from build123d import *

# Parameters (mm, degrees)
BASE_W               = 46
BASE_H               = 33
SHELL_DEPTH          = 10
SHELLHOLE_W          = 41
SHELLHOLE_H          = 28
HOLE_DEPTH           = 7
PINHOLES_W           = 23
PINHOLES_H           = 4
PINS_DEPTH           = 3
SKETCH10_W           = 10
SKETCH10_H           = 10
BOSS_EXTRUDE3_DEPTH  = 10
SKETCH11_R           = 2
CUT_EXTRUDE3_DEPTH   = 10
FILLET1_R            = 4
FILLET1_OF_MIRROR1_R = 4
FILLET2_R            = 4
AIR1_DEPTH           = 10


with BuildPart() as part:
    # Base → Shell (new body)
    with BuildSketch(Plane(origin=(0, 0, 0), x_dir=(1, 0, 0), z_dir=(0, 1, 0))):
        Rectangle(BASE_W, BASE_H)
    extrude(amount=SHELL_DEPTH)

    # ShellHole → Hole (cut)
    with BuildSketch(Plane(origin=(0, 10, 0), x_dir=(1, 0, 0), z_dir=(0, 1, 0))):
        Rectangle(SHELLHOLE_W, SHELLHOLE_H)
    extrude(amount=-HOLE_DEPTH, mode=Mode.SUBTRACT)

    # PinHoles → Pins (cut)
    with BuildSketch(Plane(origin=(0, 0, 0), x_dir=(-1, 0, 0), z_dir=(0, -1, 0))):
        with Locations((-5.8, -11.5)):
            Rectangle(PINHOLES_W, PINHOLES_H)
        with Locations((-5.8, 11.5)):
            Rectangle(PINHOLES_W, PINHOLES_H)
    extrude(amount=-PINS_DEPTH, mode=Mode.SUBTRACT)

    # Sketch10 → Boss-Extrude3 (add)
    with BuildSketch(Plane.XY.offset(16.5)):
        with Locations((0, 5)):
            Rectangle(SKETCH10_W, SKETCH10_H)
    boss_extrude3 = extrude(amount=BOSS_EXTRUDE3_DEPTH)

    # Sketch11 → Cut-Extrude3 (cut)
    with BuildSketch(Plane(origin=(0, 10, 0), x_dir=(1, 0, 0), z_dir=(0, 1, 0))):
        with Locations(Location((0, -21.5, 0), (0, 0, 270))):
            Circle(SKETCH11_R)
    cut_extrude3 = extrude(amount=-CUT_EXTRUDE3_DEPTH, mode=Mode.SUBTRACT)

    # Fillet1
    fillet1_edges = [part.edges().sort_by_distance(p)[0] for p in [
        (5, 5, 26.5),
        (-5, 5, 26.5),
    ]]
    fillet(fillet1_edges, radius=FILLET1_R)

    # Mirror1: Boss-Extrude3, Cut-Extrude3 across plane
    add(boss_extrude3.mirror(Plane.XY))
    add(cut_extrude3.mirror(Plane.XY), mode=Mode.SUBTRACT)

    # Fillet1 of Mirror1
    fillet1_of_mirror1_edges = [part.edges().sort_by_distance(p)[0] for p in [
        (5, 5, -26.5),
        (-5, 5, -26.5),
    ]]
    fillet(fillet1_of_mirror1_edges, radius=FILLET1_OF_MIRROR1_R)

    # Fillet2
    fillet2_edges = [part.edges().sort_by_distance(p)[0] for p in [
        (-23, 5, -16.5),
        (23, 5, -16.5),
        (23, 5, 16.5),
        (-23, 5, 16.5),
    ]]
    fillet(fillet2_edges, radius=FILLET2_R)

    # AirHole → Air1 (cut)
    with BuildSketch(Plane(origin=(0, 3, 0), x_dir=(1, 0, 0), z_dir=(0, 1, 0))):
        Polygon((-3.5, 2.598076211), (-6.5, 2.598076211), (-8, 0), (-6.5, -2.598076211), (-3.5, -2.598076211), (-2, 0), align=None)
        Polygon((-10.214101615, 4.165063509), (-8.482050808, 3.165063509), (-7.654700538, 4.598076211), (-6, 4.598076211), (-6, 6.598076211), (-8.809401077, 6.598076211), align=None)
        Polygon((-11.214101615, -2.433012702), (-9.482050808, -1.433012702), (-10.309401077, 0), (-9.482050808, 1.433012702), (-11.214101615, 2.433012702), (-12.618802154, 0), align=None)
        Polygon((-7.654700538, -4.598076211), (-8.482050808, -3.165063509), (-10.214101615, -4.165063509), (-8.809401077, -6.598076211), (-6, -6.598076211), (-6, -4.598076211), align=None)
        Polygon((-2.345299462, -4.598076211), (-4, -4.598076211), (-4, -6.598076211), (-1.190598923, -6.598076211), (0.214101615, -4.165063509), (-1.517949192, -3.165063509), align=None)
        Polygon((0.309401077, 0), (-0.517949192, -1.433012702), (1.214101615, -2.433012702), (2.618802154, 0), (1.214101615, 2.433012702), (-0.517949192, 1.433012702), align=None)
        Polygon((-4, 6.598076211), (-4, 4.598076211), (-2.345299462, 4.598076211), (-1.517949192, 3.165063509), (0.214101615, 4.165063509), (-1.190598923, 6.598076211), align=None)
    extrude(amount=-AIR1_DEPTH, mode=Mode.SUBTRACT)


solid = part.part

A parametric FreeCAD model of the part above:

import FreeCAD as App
import Part
import Sketcher
from FreeCAD import Vector
Q = App.Units.Quantity


def edges_at(feature, points):
    """Names of the edges that pass closest to the given points."""
    edges = feature.Shape.Edges
    near = lambda p: min(range(len(edges)), key=lambda i: edges[i].distToShape(Part.Vertex(*p))[0])
    return sorted({f"Edge{near(p) + 1}" for p in points})

doc = App.newDocument("Part")
body = doc.addObject("PartDesign::Body", "Body")

sketch1 = body.newObject("Sketcher::SketchObject", "Sketch")
sketch1.AttachmentSupport = (doc.getObject("XZ_Plane"), [""])
sketch1.MapMode = "FlatFace"
sketch1.addGeometry([
    Part.LineSegment(Vector(-23, -16, 0), Vector(-23, 16, 0)),
    Part.LineSegment(Vector(-23, 16, 0), Vector(23, 16, 0)),
    Part.LineSegment(Vector(23, 16, 0), Vector(23, -16, 0)),
    Part.LineSegment(Vector(23, -16, 0), Vector(-23, -16, 0)),
], False)
sketch1.addConstraint([
    Sketcher.Constraint("Coincident", 0, 2, 1, 1),
    Sketcher.Constraint("Coincident", 1, 2, 2, 1),
    Sketcher.Constraint("Coincident", 2, 2, 3, 1),
    Sketcher.Constraint("Coincident", 3, 2, 0, 1),
    Sketcher.Constraint("Vertical", 0),
    Sketcher.Constraint("Horizontal", 1),
    Sketcher.Constraint("Vertical", 2),
    Sketcher.Constraint("Horizontal", 3),
    Sketcher.Constraint("Symmetric", 0, 2, 2, 2, -1, 1),
    Sketcher.Constraint("DistanceX", 1, 1, 1, 2, 46.0),
    Sketcher.Constraint("DistanceY", 0, 1, 0, 2, 33.0),
])
pad1 = body.newObject("PartDesign::Pad", "Pad")
pad1.Profile = sketch1
pad1.Length = 10
pad1.Reversed = True

sketch2 = body.newObject("Sketcher::SketchObject", "Sketch001")
sketch2.AttachmentSupport = (doc.getObject("XZ_Plane"), [""])
sketch2.MapMode = "FlatFace"
sketch2.AttachmentOffset = App.Placement(Vector(0, 0, -10), App.Rotation())
sketch2.addGeometry([
    Part.LineSegment(Vector(-20, -14, 0), Vector(-20, 14, 0)),
    Part.LineSegment(Vector(-20, 14, 0), Vector(20, 14, 0)),
    Part.LineSegment(Vector(20, 14, 0), Vector(20, -14, 0)),
    Part.LineSegment(Vector(20, -14, 0), Vector(-20, -14, 0)),
], False)
sketch2.addConstraint([
    Sketcher.Constraint("Coincident", 0, 2, 1, 1),
    Sketcher.Constraint("Coincident", 1, 2, 2, 1),
    Sketcher.Constraint("Coincident", 2, 2, 3, 1),
    Sketcher.Constraint("Coincident", 3, 2, 0, 1),
    Sketcher.Constraint("Vertical", 0),
    Sketcher.Constraint("Horizontal", 1),
    Sketcher.Constraint("Vertical", 2),
    Sketcher.Constraint("Horizontal", 3),
    Sketcher.Constraint("Symmetric", 0, 2, 2, 2, -1, 1),
    Sketcher.Constraint("DistanceX", 1, 1, 1, 2, 41.0),
    Sketcher.Constraint("DistanceY", 0, 1, 0, 2, 28.0),
])
pocket1 = body.newObject("PartDesign::Pocket", "Pocket")
pocket1.Profile = sketch2
pocket1.Length = 7
pocket1.Reversed = True

sketch3 = body.newObject("Sketcher::SketchObject", "Sketch002")
sketch3.AttachmentSupport = (doc.getObject("XZ_Plane"), [""])
sketch3.MapMode = "FlatFace"
sketch3.addGeometry([
    Part.LineSegment(Vector(17.3, 9.5, 0), Vector(17.3, 13.5, 0)),
    Part.LineSegment(Vector(17.3, 13.5, 0), Vector(-5.7, 13.5, 0)),
    Part.LineSegment(Vector(-5.7, 13.5, 0), Vector(-5.7, 9.5, 0)),
    Part.LineSegment(Vector(-5.7, 9.5, 0), Vector(17.3, 9.5, 0)),
    Part.LineSegment(Vector(17.3, -13.5, 0), Vector(17.3, -9.5, 0)),
    Part.LineSegment(Vector(17.3, -9.5, 0), Vector(-5.7, -9.5, 0)),
    Part.LineSegment(Vector(-5.7, -9.5, 0), Vector(-5.7, -13.5, 0)),
    Part.LineSegment(Vector(-5.7, -13.5, 0), Vector(17.3, -13.5, 0)),
], False)
sketch3.addConstraint([
    Sketcher.Constraint("Coincident", 0, 2, 1, 1),
    Sketcher.Constraint("Coincident", 1, 2, 2, 1),
    Sketcher.Constraint("Coincident", 2, 2, 3, 1),
    Sketcher.Constraint("Coincident", 3, 2, 0, 1),
    Sketcher.Constraint("Coincident", 4, 2, 5, 1),
    Sketcher.Constraint("Coincident", 5, 2, 6, 1),
    Sketcher.Constraint("Coincident", 6, 2, 7, 1),
    Sketcher.Constraint("Coincident", 7, 2, 4, 1),
    Sketcher.Constraint("Vertical", 0),
    Sketcher.Constraint("Horizontal", 1),
    Sketcher.Constraint("Vertical", 2),
    Sketcher.Constraint("Horizontal", 3),
    Sketcher.Constraint("Vertical", 4),
    Sketcher.Constraint("Horizontal", 5),
    Sketcher.Constraint("Vertical", 6),
    Sketcher.Constraint("Horizontal", 7),
    Sketcher.Constraint("Symmetric", 3, 2, 4, 2, -1),
    Sketcher.Constraint("Symmetric", 1, 2, 6, 2, -1),
    Sketcher.Constraint("DistanceX", 1, 2, 1, 1, 23.0),
    Sketcher.Constraint("DistanceY", 0, 1, 0, 2, 4.0),
    Sketcher.Constraint("DistanceY", 4, 2, 3, 2, 19.0),
    Sketcher.Constraint("DistanceX", -1, 1, 0, 2, 17.3),
])
pocket2 = body.newObject("PartDesign::Pocket", "Pocket001")
pocket2.Profile = sketch3
pocket2.Length = 3

sketch4 = body.newObject("Sketcher::SketchObject", "Sketch003")
sketch4.AttachmentSupport = (doc.getObject("XY_Plane"), [""])
sketch4.MapMode = "FlatFace"
sketch4.AttachmentOffset = App.Placement(Vector(0, 0, 16.5), App.Rotation())
sketch4.addGeometry([
    Part.LineSegment(Vector(-5, 10, 0), Vector(-5, 0, 0)),
    Part.LineSegment(Vector(-5, 0, 0), Vector(5, 0, 0)),
    Part.LineSegment(Vector(5, 0, 0), Vector(5, 10, 0)),
    Part.LineSegment(Vector(5, 10, 0), Vector(-5, 10, 0)),
], False)
sketch4.addConstraint([
    Sketcher.Constraint("Coincident", 0, 2, 1, 1),
    Sketcher.Constraint("Coincident", 1, 2, 2, 1),
    Sketcher.Constraint("Coincident", 2, 2, 3, 1),
    Sketcher.Constraint("Coincident", 3, 2, 0, 1),
    Sketcher.Constraint("Vertical", 0),
    Sketcher.Constraint("Horizontal", 1),
    Sketcher.Constraint("Vertical", 2),
    Sketcher.Constraint("Horizontal", 3),
    Sketcher.Constraint("Symmetric", 0, 2, 1, 2, -1, 1),
    Sketcher.Constraint("Equal", 3, 0),
    Sketcher.Constraint("DistanceX", 1, 1, 1, 2, 10.0),
])
pad2 = body.newObject("PartDesign::Pad", "Pad001")
pad2.Profile = sketch4
pad2.Length = 10

sketch5 = body.newObject("Sketcher::SketchObject", "Sketch004")
sketch5.AttachmentSupport = (doc.getObject("XZ_Plane"), [""])
sketch5.MapMode = "FlatFace"
sketch5.AttachmentOffset = App.Placement(Vector(0, 0, -10), App.Rotation())
sketch5.addGeometry(Part.Circle(Vector(0, 21.5, 0), Vector(0, 0, 1), 2), False)
sketch5.addConstraint([
    Sketcher.Constraint("PointOnObject", 0, 3, -2),
    Sketcher.Constraint("Diameter", 0, 4.0),
    Sketcher.Constraint("DistanceY", -1, 1, 0, 3, 21.5),
])
pocket3 = body.newObject("PartDesign::Pocket", "Pocket002")
pocket3.Profile = sketch5
pocket3.Length = 10
pocket3.Reversed = True
doc.recompute()

fillet = body.newObject("PartDesign::Fillet", "Fillet")
fillet.Base = (pocket3, edges_at(pocket3, [(5, 5, 26.5), (-5, 5, 26.5)]))
fillet.Radius = 4
doc.recompute()

mirrored = body.newObject("PartDesign::Mirrored", "Mirrored")
mirrored.Originals = [pad2, pocket3]
mirrored.MirrorPlane = (doc.getObject("XY_Plane"), [""])
body.Tip = mirrored
doc.recompute()

fillet2 = body.newObject("PartDesign::Fillet", "Fillet001")
fillet2.Base = (mirrored, edges_at(mirrored, [(5, 5, -26.5), (-5, 5, -26.5)]))
fillet2.Radius = 4
doc.recompute()

fillet3 = body.newObject("PartDesign::Fillet", "Fillet002")
fillet3.Base = (fillet2, edges_at(fillet2, [
    (-23, 5, -16.5),
    (23, 5, -16.5),
    (23, 5, 16.5),
    (-23, 5, 16.5),
]))
fillet3.Radius = 4

sketch6 = body.newObject("Sketcher::SketchObject", "Sketch005")
sketch6.AttachmentSupport = (doc.getObject("XZ_Plane"), [""])
sketch6.MapMode = "FlatFace"
sketch6.AttachmentOffset = App.Placement(Vector(0, 0, -3), App.Rotation())
sketch6.addGeometry([
    Part.LineSegment(Vector(-3.5, -2.6, 0), Vector(-6.5, -2.6, 0)),
    Part.LineSegment(Vector(-6.5, -2.6, 0), Vector(-8, 0, 0)),
    Part.LineSegment(Vector(-8, 0, 0), Vector(-6.5, 2.6, 0)),
    Part.LineSegment(Vector(-6.5, 2.6, 0), Vector(-3.5, 2.6, 0)),
    Part.LineSegment(Vector(-3.5, 2.6, 0), Vector(-2, 0, 0)),
    Part.LineSegment(Vector(-2, 0, 0), Vector(-3.5, -2.6, 0)),
    Part.LineSegment(Vector(-10.2, -4.2, 0), Vector(-8.5, -3.2, 0)),
    Part.LineSegment(Vector(-8.5, -3.2, 0), Vector(-7.7, -4.6, 0)),
    Part.LineSegment(Vector(-7.7, -4.6, 0), Vector(-6, -4.6, 0)),
    Part.LineSegment(Vector(-6, -4.6, 0), Vector(-6, -6.6, 0)),
    Part.LineSegment(Vector(-6, -6.6, 0), Vector(-8.8, -6.6, 0)),
    Part.LineSegment(Vector(-8.8, -6.6, 0), Vector(-10.2, -4.2, 0)),
    Part.LineSegment(Vector(-11.2, 2.4, 0), Vector(-9.5, 1.4, 0)),
    Part.LineSegment(Vector(-9.5, 1.4, 0), Vector(-10.3, 0, 0)),
    Part.LineSegment(Vector(-10.3, 0, 0), Vector(-9.5, -1.4, 0)),
    Part.LineSegment(Vector(-9.5, -1.4, 0), Vector(-11.2, -2.4, 0)),
    Part.LineSegment(Vector(-11.2, -2.4, 0), Vector(-12.6, 0, 0)),
    Part.LineSegment(Vector(-12.6, 0, 0), Vector(-11.2, 2.4, 0)),
    Part.LineSegment(Vector(-7.7, 4.6, 0), Vector(-8.5, 3.2, 0)),
    Part.LineSegment(Vector(-8.5, 3.2, 0), Vector(-10.2, 4.2, 0)),
    Part.LineSegment(Vector(-10.2, 4.2, 0), Vector(-8.8, 6.6, 0)),
    Part.LineSegment(Vector(-8.8, 6.6, 0), Vector(-6, 6.6, 0)),
    Part.LineSegment(Vector(-6, 6.6, 0), Vector(-6, 4.6, 0)),
    Part.LineSegment(Vector(-6, 4.6, 0), Vector(-7.7, 4.6, 0)),
    Part.LineSegment(Vector(-2.3, 4.6, 0), Vector(-4, 4.6, 0)),
    Part.LineSegment(Vector(-4, 4.6, 0), Vector(-4, 6.6, 0)),
    Part.LineSegment(Vector(-4, 6.6, 0), Vector(-1.2, 6.6, 0)),
    Part.LineSegment(Vector(-1.2, 6.6, 0), Vector(0.2, 4.2, 0)),
    Part.LineSegment(Vector(0.2, 4.2, 0), Vector(-1.5, 3.2, 0)),
    Part.LineSegment(Vector(-1.5, 3.2, 0), Vector(-2.3, 4.6, 0)),
    Part.LineSegment(Vector(0.3, 0, 0), Vector(-0.5, 1.4, 0)),
    Part.LineSegment(Vector(-0.5, 1.4, 0), Vector(1.2, 2.4, 0)),
    Part.LineSegment(Vector(1.2, 2.4, 0), Vector(2.6, 0, 0)),
    Part.LineSegment(Vector(2.6, 0, 0), Vector(1.2, -2.4, 0)),
    Part.LineSegment(Vector(1.2, -2.4, 0), Vector(-0.5, -1.4, 0)),
    Part.LineSegment(Vector(-0.5, -1.4, 0), Vector(0.3, 0, 0)),
    Part.LineSegment(Vector(-4, -6.6, 0), Vector(-4, -4.6, 0)),
    Part.LineSegment(Vector(-4, -4.6, 0), Vector(-2.3, -4.6, 0)),
    Part.LineSegment(Vector(-2.3, -4.6, 0), Vector(-1.5, -3.2, 0)),
    Part.LineSegment(Vector(-1.5, -3.2, 0), Vector(0.2, -4.2, 0)),
    Part.LineSegment(Vector(0.2, -4.2, 0), Vector(-1.2, -6.6, 0)),
    Part.LineSegment(Vector(-1.2, -6.6, 0), Vector(-4, -6.6, 0)),
], False)
sketch6.addConstraint([
    Sketcher.Constraint("Coincident", 0, 2, 1, 1),
    Sketcher.Constraint("Coincident", 1, 2, 2, 1),
    Sketcher.Constraint("Coincident", 2, 2, 3, 1),
    Sketcher.Constraint("Coincident", 3, 2, 4, 1),
    Sketcher.Constraint("Coincident", 4, 2, 5, 1),
    Sketcher.Constraint("Coincident", 5, 2, 0, 1),
    Sketcher.Constraint("Coincident", 6, 2, 7, 1),
    Sketcher.Constraint("Coincident", 7, 2, 8, 1),
    Sketcher.Constraint("Coincident", 8, 2, 9, 1),
    Sketcher.Constraint("Coincident", 9, 2, 10, 1),
    Sketcher.Constraint("Coincident", 10, 2, 11, 1),
    Sketcher.Constraint("Coincident", 11, 2, 6, 1),
    Sketcher.Constraint("Coincident", 12, 2, 13, 1),
    Sketcher.Constraint("Coincident", 13, 2, 14, 1),
    Sketcher.Constraint("Coincident", 14, 2, 15, 1),
    Sketcher.Constraint("Coincident", 15, 2, 16, 1),
    Sketcher.Constraint("Coincident", 16, 2, 17, 1),
    Sketcher.Constraint("Coincident", 17, 2, 12, 1),
    Sketcher.Constraint("Coincident", 18, 2, 19, 1),
    Sketcher.Constraint("Coincident", 19, 2, 20, 1),
    Sketcher.Constraint("Coincident", 20, 2, 21, 1),
    Sketcher.Constraint("Coincident", 21, 2, 22, 1),
    Sketcher.Constraint("Coincident", 22, 2, 23, 1),
    Sketcher.Constraint("Coincident", 23, 2, 18, 1),
    Sketcher.Constraint("Coincident", 24, 2, 25, 1),
    Sketcher.Constraint("Coincident", 25, 2, 26, 1),
    Sketcher.Constraint("Coincident", 26, 2, 27, 1),
    Sketcher.Constraint("Coincident", 27, 2, 28, 1),
    Sketcher.Constraint("Coincident", 28, 2, 29, 1),
    Sketcher.Constraint("Coincident", 29, 2, 24, 1),
    Sketcher.Constraint("Coincident", 30, 2, 31, 1),
    Sketcher.Constraint("Coincident", 31, 2, 32, 1),
    Sketcher.Constraint("Coincident", 32, 2, 33, 1),
    Sketcher.Constraint("Coincident", 33, 2, 34, 1),
    Sketcher.Constraint("Coincident", 34, 2, 35, 1),
    Sketcher.Constraint("Coincident", 35, 2, 30, 1),
    Sketcher.Constraint("Coincident", 36, 2, 37, 1),
    Sketcher.Constraint("Coincident", 37, 2, 38, 1),
    Sketcher.Constraint("Coincident", 38, 2, 39, 1),
    Sketcher.Constraint("Coincident", 39, 2, 40, 1),
    Sketcher.Constraint("Coincident", 40, 2, 41, 1),
    Sketcher.Constraint("Coincident", 41, 2, 36, 1),
    Sketcher.Constraint("Horizontal", 0),
    Sketcher.Constraint("Horizontal", 3),
    Sketcher.Constraint("Horizontal", 8),
    Sketcher.Constraint("Vertical", 9),
    Sketcher.Constraint("Horizontal", 10),
    Sketcher.Constraint("Horizontal", 21),
    Sketcher.Constraint("Vertical", 22),
    Sketcher.Constraint("Horizontal", 23),
    Sketcher.Constraint("Horizontal", 24),
    Sketcher.Constraint("Vertical", 25),
    Sketcher.Constraint("Horizontal", 26),
    Sketcher.Constraint("Vertical", 36),
    Sketcher.Constraint("Horizontal", 37),
    Sketcher.Constraint("Horizontal", 41),
    Sketcher.Constraint("Symmetric", 0, 2, 2, 2, -1),
    Sketcher.Constraint("Symmetric", 12, 2, 14, 2, -1),
    Sketcher.Constraint("Symmetric", 15, 2, 17, 2, -1),
    Sketcher.Constraint("Symmetric", 6, 2, 18, 2, -1),
    Sketcher.Constraint("Symmetric", 11, 2, 19, 2, -1),
    Sketcher.Constraint("Symmetric", 10, 2, 20, 2, -1),
    Sketcher.Constraint("Symmetric", 8, 2, 22, 2, -1),
    Sketcher.Constraint("Symmetric", 31, 2, 33, 2, -1),
    Sketcher.Constraint("Symmetric", 30, 2, 34, 2, -1),
    Sketcher.Constraint("Symmetric", 24, 2, 36, 2, -1),
    Sketcher.Constraint("Symmetric", 28, 2, 38, 2, -1),
    Sketcher.Constraint("Symmetric", 27, 2, 39, 2, -1),
    Sketcher.Constraint("Symmetric", 26, 2, 40, 2, -1),
    Sketcher.Constraint("PointOnObject", 1, 2, -1),
    Sketcher.Constraint("PointOnObject", 4, 2, -1),
    Sketcher.Constraint("PointOnObject", 13, 2, -1),
    Sketcher.Constraint("PointOnObject", 16, 2, -1),
    Sketcher.Constraint("PointOnObject", 32, 2, -1),
    Sketcher.Constraint("PointOnObject", 35, 2, -1),
    Sketcher.Constraint("Parallel", 1, 4),
    Sketcher.Constraint("Parallel", 2, 5),
    Sketcher.Constraint("Perpendicular", 4, 6),
    Sketcher.Constraint("Perpendicular", 6, 7),
    Sketcher.Constraint("Parallel", 7, 11),
    Sketcher.Constraint("Perpendicular", 5, 12),
    Sketcher.Constraint("Perpendicular", 12, 13),
    Sketcher.Constraint("Perpendicular", 15, 16),
    Sketcher.Constraint("Parallel", 17, 18),
    Sketcher.Constraint("Parallel", 16, 27),
    Sketcher.Constraint("Perpendicular", 27, 28),
    Sketcher.Constraint("Perpendicular", 28, 29),
    Sketcher.Constraint("Parallel", 29, 30),
    Sketcher.Constraint("Perpendicular", 30, 31),
    Sketcher.Constraint("Perpendicular", 31, 32),
    Sketcher.Constraint("Parallel", 35, 38),
    Sketcher.Constraint("Horizontal", 23, 2, 24, 2),
    Sketcher.Constraint("Horizontal", 21, 2, 25, 2),
    Sketcher.Constraint("Horizontal", 19, 2, 27, 2),
    Sketcher.Constraint("Horizontal", 18, 2, 28, 2),
    Sketcher.Constraint("Horizontal", 12, 2, 30, 2),
    Sketcher.Constraint("Horizontal", 17, 2, 31, 2),
    Sketcher.Constraint("Equal", 23, 24),
    Sketcher.Constraint("Equal", 6, 12),
    Sketcher.Constraint("Equal", 7, 13),
    Sketcher.Constraint("Equal", 11, 16),
    Sketcher.Constraint("DistanceX", 0, 2, 0, 1, 3.0),
    Sketcher.Constraint("DistanceY", 9, 2, 9, 1, 2.0),
    Sketcher.Constraint("Angle", 1, Q("120 deg")),
    Sketcher.Constraint("Distance", 1, 3.0),
    Sketcher.Constraint("DistanceX", 1, 2, -1, 1, 8.0),
    Sketcher.Constraint("DistanceX", 8, 2, -1, 1, 6.0),
    Sketcher.Constraint("DistanceX", 24, 2, -1, 1, 4.0),
    Sketcher.Constraint("DistanceY", 7, 2, 0, 2, 2.0),
    Sketcher.Constraint("DistanceX", 12, 2, 6, 2, 1.0),
    Sketcher.Constraint("DistanceX", 28, 2, 30, 2, 1.0),
    Sketcher.Constraint("DistanceX", 8, 1, 8, 2, 1.654701),
    Sketcher.Constraint("Distance", 7, 1.654701),
])
pocket4 = body.newObject("PartDesign::Pocket", "Pocket003")
pocket4.Profile = sketch6
pocket4.Length = 10
pocket4.Reversed = True

doc.recompute()
